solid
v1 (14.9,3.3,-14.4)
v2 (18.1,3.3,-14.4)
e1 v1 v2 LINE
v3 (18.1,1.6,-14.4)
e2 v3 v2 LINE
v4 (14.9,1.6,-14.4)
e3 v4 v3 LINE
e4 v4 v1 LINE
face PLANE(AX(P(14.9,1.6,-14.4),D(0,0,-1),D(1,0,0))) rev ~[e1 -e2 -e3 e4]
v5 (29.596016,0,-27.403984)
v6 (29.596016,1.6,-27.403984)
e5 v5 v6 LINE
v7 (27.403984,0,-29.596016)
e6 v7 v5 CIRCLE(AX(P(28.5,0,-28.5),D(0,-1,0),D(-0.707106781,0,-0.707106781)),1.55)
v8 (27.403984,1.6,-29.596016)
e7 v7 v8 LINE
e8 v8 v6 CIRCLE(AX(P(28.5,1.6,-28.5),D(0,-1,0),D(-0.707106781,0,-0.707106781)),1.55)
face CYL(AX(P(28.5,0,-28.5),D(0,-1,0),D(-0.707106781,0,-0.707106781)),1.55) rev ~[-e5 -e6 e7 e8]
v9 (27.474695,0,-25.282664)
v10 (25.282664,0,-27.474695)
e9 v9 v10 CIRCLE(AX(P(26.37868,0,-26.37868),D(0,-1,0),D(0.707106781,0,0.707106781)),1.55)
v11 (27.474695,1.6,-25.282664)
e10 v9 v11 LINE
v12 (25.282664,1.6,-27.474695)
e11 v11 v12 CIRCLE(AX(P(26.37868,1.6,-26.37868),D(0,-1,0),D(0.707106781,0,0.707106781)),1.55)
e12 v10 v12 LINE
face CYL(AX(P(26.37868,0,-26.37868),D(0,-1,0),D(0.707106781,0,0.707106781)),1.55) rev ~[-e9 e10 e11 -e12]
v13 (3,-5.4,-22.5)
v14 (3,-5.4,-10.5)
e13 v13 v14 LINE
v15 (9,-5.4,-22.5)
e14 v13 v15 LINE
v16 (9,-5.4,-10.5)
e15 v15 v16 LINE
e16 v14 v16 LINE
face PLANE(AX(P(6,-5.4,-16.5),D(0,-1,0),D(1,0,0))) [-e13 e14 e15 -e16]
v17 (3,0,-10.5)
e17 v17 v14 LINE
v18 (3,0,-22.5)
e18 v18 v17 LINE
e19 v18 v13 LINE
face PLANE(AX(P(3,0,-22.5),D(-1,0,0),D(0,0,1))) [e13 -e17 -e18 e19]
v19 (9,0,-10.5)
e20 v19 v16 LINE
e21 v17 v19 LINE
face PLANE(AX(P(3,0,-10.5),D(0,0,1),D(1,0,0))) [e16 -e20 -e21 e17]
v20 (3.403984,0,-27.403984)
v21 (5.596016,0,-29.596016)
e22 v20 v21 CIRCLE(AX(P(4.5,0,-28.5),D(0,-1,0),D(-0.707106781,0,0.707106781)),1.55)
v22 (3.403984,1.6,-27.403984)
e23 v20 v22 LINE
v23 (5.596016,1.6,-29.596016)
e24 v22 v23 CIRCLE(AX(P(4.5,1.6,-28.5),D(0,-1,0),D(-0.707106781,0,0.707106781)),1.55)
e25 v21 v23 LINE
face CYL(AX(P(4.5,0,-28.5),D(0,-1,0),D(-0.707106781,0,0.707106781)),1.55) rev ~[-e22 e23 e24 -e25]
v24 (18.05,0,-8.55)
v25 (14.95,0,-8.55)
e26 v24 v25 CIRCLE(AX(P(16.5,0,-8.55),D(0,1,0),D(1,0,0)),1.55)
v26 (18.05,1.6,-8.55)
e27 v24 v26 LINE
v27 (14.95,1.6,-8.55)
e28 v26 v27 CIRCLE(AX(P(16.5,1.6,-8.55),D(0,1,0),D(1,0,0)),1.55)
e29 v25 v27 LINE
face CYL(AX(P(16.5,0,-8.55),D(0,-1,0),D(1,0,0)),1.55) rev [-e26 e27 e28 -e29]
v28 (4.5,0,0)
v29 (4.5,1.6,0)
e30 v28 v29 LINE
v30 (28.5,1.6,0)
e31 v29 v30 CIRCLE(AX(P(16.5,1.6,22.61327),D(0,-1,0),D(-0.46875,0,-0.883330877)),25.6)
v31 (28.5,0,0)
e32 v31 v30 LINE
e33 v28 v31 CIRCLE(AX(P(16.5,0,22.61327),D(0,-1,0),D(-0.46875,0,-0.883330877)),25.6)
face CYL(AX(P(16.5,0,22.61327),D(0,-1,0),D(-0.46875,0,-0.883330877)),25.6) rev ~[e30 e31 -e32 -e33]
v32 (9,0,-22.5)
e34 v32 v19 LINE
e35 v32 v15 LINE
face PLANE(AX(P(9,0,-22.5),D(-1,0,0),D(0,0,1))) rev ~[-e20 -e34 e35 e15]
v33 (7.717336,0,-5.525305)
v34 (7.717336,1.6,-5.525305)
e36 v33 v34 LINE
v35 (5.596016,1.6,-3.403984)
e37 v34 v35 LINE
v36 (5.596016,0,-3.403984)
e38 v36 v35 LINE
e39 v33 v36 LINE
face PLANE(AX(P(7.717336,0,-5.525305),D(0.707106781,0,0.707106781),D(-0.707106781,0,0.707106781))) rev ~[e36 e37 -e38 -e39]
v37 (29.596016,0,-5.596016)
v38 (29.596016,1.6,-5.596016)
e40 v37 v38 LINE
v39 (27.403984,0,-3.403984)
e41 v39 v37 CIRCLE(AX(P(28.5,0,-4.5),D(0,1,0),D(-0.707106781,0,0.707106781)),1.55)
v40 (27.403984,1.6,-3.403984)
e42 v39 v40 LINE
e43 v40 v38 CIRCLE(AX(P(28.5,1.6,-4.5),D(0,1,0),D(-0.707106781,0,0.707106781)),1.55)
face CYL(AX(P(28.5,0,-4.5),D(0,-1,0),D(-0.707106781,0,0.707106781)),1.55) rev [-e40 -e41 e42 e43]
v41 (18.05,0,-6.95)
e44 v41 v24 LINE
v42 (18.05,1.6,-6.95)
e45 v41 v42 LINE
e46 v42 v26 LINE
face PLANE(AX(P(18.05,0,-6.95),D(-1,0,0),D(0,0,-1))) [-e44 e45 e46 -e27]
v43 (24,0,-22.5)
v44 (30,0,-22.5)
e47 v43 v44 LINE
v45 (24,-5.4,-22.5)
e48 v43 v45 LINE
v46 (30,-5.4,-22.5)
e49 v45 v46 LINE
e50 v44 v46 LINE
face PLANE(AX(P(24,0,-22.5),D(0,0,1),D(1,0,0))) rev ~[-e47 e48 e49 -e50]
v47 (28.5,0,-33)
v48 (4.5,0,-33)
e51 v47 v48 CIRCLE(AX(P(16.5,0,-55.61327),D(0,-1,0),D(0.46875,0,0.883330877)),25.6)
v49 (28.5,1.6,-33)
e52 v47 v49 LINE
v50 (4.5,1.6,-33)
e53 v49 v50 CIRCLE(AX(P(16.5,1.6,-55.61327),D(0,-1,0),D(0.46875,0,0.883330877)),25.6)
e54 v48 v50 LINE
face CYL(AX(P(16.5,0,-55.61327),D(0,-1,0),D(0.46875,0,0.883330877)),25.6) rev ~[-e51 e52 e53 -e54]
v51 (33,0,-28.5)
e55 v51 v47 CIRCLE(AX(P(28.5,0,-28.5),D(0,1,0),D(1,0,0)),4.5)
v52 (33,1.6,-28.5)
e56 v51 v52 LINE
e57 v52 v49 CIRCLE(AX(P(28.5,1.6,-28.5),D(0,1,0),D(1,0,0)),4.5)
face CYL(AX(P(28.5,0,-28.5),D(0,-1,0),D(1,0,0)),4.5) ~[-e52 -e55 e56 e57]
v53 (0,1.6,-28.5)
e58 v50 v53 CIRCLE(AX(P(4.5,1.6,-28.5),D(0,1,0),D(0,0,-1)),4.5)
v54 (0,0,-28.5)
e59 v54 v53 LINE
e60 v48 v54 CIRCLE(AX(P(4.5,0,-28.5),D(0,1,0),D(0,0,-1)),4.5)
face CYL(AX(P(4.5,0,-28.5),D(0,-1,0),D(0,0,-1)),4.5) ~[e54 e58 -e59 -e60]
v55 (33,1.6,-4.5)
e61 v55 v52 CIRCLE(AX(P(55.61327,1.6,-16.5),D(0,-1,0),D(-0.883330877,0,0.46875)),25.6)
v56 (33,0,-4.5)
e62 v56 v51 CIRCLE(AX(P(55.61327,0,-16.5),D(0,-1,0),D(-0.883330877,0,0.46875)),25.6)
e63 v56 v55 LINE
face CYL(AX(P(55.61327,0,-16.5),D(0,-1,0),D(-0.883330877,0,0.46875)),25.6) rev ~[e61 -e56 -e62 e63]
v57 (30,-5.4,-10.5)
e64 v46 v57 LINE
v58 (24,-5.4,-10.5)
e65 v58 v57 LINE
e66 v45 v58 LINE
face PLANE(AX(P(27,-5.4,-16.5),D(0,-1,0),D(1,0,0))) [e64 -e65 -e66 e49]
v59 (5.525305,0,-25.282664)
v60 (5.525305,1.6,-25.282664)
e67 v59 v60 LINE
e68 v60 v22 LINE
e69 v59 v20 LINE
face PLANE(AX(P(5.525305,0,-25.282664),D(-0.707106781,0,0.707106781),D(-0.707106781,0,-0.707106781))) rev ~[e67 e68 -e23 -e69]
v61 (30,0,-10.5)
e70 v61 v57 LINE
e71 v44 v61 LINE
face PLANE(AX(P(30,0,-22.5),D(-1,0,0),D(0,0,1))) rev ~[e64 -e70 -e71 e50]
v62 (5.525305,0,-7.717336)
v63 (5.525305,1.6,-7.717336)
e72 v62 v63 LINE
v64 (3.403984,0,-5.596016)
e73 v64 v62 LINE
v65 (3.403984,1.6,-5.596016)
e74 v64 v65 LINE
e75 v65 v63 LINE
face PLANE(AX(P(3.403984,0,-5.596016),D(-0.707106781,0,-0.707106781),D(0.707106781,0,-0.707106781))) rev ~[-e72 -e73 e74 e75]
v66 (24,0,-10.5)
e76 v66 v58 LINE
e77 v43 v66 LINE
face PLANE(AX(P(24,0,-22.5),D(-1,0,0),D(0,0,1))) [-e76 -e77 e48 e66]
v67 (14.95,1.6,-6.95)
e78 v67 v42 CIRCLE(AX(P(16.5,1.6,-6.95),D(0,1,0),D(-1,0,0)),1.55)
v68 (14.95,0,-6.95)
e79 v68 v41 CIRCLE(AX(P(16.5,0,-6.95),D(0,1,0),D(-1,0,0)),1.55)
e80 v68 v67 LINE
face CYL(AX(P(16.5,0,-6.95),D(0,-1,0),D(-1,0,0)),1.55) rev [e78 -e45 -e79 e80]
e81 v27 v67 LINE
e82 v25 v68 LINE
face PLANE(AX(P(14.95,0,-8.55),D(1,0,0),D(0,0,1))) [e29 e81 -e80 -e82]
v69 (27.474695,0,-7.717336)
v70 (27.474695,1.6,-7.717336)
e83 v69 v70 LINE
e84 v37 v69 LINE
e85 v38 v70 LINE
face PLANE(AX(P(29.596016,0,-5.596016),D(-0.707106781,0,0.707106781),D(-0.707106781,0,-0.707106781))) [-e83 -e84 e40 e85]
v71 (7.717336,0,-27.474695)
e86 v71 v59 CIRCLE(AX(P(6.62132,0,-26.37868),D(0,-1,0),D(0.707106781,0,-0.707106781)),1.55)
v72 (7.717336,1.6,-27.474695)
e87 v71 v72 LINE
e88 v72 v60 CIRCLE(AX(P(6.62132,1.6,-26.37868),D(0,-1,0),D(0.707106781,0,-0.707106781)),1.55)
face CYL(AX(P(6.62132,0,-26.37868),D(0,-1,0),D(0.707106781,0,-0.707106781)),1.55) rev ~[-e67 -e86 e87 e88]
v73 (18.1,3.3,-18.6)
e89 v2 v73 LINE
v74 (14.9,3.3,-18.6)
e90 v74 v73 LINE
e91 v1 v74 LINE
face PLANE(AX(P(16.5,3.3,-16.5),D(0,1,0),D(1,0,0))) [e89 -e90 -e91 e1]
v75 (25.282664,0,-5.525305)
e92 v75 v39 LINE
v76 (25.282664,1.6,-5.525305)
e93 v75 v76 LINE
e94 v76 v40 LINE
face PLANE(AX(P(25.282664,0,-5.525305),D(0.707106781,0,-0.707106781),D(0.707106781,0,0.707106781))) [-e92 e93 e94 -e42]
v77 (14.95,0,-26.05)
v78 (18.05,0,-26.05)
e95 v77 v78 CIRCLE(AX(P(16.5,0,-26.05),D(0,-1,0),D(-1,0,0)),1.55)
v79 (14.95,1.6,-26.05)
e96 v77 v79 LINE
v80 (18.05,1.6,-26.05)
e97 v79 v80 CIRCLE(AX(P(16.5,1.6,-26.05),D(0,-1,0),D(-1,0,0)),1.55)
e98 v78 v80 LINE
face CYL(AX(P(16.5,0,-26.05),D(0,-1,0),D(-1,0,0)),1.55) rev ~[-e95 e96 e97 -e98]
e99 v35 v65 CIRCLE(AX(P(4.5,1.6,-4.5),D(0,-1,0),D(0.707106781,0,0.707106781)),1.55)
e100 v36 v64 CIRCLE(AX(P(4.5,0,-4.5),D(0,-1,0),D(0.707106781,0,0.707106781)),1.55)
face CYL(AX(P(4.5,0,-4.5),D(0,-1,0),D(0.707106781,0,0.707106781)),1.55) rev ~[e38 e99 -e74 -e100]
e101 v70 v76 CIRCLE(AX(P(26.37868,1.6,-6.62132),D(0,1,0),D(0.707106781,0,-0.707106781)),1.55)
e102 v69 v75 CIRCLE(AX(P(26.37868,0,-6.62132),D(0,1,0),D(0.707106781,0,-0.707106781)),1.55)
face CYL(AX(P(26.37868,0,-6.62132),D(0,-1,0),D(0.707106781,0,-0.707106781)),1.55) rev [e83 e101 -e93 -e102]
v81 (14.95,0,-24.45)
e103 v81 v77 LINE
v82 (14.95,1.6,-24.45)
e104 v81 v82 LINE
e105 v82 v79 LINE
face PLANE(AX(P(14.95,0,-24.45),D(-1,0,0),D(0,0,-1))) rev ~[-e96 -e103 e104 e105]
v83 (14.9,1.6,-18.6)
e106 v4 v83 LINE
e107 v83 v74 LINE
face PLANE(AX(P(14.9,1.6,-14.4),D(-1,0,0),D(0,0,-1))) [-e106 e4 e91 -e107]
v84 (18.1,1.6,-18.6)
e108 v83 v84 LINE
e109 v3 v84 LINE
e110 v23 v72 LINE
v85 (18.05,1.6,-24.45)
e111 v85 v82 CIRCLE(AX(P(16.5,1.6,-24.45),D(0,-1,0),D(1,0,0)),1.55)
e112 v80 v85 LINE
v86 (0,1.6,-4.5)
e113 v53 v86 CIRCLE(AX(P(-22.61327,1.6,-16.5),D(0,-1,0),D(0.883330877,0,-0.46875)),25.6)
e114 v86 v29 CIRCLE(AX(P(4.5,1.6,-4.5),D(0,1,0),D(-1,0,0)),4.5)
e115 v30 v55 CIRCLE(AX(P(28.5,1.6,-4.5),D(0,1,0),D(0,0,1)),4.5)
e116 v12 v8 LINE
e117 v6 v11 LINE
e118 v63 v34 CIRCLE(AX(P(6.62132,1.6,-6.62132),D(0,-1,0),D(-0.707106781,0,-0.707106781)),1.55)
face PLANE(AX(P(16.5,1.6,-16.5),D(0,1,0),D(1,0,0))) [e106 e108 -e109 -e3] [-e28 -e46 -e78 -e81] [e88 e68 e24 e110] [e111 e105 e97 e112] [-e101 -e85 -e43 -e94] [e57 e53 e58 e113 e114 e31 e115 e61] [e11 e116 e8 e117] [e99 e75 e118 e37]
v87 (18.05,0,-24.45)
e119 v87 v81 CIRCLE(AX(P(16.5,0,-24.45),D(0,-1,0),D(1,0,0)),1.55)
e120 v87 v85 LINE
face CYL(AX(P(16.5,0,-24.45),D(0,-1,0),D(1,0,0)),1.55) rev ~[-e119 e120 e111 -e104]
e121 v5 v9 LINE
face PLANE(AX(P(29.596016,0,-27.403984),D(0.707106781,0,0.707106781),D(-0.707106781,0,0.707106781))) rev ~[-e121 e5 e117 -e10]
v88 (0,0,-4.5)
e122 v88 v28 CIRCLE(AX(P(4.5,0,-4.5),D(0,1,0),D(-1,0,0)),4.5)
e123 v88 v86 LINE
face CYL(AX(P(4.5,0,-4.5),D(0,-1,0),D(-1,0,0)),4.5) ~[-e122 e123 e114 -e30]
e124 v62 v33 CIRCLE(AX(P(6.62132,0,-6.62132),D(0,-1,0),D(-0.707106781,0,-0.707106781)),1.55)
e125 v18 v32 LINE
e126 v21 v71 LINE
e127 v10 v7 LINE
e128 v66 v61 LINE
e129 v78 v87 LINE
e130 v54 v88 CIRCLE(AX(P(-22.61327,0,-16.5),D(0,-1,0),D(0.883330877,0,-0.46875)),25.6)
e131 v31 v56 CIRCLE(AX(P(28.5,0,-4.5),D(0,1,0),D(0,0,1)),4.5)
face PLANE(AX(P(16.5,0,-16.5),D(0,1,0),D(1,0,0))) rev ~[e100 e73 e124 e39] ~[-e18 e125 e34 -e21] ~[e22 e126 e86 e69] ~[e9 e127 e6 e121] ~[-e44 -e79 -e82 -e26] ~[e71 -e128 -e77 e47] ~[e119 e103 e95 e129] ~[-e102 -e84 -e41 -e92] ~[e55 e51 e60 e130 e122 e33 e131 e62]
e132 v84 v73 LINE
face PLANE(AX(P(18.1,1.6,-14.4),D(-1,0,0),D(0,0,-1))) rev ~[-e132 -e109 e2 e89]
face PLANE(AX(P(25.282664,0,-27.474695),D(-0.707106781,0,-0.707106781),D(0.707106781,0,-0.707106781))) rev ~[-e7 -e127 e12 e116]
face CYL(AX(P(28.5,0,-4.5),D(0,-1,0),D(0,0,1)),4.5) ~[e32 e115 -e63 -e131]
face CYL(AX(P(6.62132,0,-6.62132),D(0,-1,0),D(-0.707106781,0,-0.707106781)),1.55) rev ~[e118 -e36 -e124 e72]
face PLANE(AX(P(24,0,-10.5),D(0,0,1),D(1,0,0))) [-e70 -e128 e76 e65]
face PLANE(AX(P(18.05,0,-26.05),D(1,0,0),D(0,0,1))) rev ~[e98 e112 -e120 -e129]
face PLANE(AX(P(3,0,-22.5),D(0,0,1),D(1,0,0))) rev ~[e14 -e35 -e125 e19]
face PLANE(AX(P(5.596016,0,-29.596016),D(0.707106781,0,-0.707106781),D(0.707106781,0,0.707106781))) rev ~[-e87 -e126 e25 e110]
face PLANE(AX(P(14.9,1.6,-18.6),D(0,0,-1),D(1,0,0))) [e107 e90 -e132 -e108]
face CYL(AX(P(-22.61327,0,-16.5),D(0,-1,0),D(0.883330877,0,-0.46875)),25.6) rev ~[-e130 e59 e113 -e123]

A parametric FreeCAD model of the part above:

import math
import FreeCAD as App
import Part
import Sketcher
from FreeCAD import Vector


def add_polygon(sketch, points):
    """Adds a closed chain of lines whose ends are joined by coincident constraints."""
    first, n = sketch.GeometryCount, len(points)
    for a, b in zip(points, points[1:] + points[:1]):
        sketch.addGeometry(Part.LineSegment(App.Vector(*a, 0), App.Vector(*b, 0)), False)
    for i in range(n):
        sketch.addConstraint(Sketcher.Constraint("Coincident", first + i, 2, first + (i + 1) % n, 1))

doc = App.newDocument("Part")
body = doc.addObject("PartDesign::Body", "Body")

sketch1 = body.newObject("Sketcher::SketchObject", "Sketch")
sketch1.AttachmentSupport = (doc.getObject("XZ_Plane"), [""])
sketch1.MapMode = "FlatFace"
sketch1.addGeometry([
    Part.ArcOfCircle(Part.Circle(Vector(4.5, -4.5, 0), Vector(0, 0, 1), 4.5), math.radians(90), math.radians(180)),
    Part.ArcOfCircle(Part.Circle(Vector(16.5, 22.61327, 0), Vector(0, 0, 1), 25.6), math.radians(-117.953187), math.radians(-62.046813)),
    Part.ArcOfCircle(Part.Circle(Vector(28.5, -4.5, 0), Vector(0, 0, 1), 4.5), math.radians(0), math.radians(90)),
    Part.ArcOfCircle(Part.Circle(Vector(55.61327, -16.5, 0), Vector(0, 0, 1), 25.6), math.radians(152.046813), math.radians(207.953187)),
    Part.ArcOfCircle(Part.Circle(Vector(28.5, -28.5, 0), Vector(0, 0, 1), 4.5), math.radians(-90), math.radians(0)),
    Part.ArcOfCircle(Part.Circle(Vector(16.5, -55.61327, 0), Vector(0, 0, 1), 25.6), math.radians(62.046813), math.radians(117.953187)),
    Part.ArcOfCircle(Part.Circle(Vector(4.5, -28.5, 0), Vector(0, 0, 1), 4.5), math.radians(-180), math.radians(-90)),
    Part.ArcOfCircle(Part.Circle(Vector(-22.61327, -16.5, 0), Vector(0, 0, 1), 25.6), math.radians(-27.953187), math.radians(27.953187)),
    Part.ArcOfCircle(Part.Circle(Vector(4.5, -4.5, 0), Vector(0, 0, 1), 1.55), math.radians(45), math.radians(225)),
    Part.LineSegment(Vector(3.403984, -5.596016, 0), Vector(5.525305, -7.717336, 0)),
    Part.ArcOfCircle(Part.Circle(Vector(6.62132, -6.62132, 0), Vector(0, 0, 1), 1.55), math.radians(-135), math.radians(45)),
    Part.LineSegment(Vector(7.717336, -5.525305, 0), Vector(5.596016, -3.403984, 0)),
    Part.LineSegment(Vector(18.05, -8.55, 0), Vector(18.05, -6.95, 0)),
    Part.ArcOfCircle(Part.Circle(Vector(16.5, -6.95, 0), Vector(0, 0, 1), 1.55), math.radians(0), math.radians(180)),
    Part.LineSegment(Vector(14.95, -6.95, 0), Vector(14.95, -8.55, 0)),
    Part.ArcOfCircle(Part.Circle(Vector(16.5, -8.55, 0), Vector(0, 0, 1), 1.55), math.radians(180), math.radians(360)),
    Part.LineSegment(Vector(27.474695, -7.717336, 0), Vector(29.596016, -5.596016, 0)),
    Part.ArcOfCircle(Part.Circle(Vector(28.5, -4.5, 0), Vector(0, 0, 1), 1.55), math.radians(-45), math.radians(135)),
    Part.LineSegment(Vector(27.403984, -3.403984, 0), Vector(25.282664, -5.525305, 0)),
    Part.ArcOfCircle(Part.Circle(Vector(26.37868, -6.62132, 0), Vector(0, 0, 1), 1.55), math.radians(135), math.radians(315)),
    Part.ArcOfCircle(Part.Circle(Vector(4.5, -28.5, 0), Vector(0, 0, 1), 1.55), math.radians(135), math.radians(315)),
    Part.LineSegment(Vector(5.596016, -29.596016, 0), Vector(7.717336, -27.474695, 0)),
    Part.ArcOfCircle(Part.Circle(Vector(6.62132, -26.37868, 0), Vector(0, 0, 1), 1.55), math.radians(-45), math.radians(135)),
    Part.LineSegment(Vector(5.525305, -25.282664, 0), Vector(3.403984, -27.403984, 0)),
    Part.ArcOfCircle(Part.Circle(Vector(16.5, -26.05, 0), Vector(0, 0, 1), 1.55), math.radians(180), math.radians(360)),
    Part.LineSegment(Vector(18.05, -26.05, 0), Vector(18.05, -24.45, 0)),
    Part.ArcOfCircle(Part.Circle(Vector(16.5, -24.45, 0), Vector(0, 0, 1), 1.55), math.radians(0), math.radians(180)),
    Part.LineSegment(Vector(14.95, -24.45, 0), Vector(14.95, -26.05, 0)),
    Part.ArcOfCircle(Part.Circle(Vector(26.37868, -26.37868, 0), Vector(0, 0, 1), 1.55), math.radians(45), math.radians(225)),
    Part.LineSegment(Vector(25.282664, -27.474695, 0), Vector(27.403984, -29.596016, 0)),
    Part.ArcOfCircle(Part.Circle(Vector(28.5, -28.5, 0), Vector(0, 0, 1), 1.55), math.radians(-135), math.radians(45)),
    Part.LineSegment(Vector(29.596016, -27.403984, 0), Vector(27.474695, -25.282664, 0)),
], False)
sketch1.addConstraint([
    Sketcher.Constraint("Coincident", 0, 1, 1, 1),
    Sketcher.Constraint("Coincident", 1, 2, 2, 2),
    Sketcher.Constraint("Coincident", 2, 1, 3, 1),
    Sketcher.Constraint("Coincident", 3, 2, 4, 2),
    Sketcher.Constraint("Coincident", 4, 1, 5, 1),
    Sketcher.Constraint("Coincident", 5, 2, 6, 2),
    Sketcher.Constraint("Coincident", 6, 1, 7, 1),
    Sketcher.Constraint("Coincident", 7, 2, 0, 2),
    Sketcher.Constraint("Tangent", 8, 2, 9, 1),
    Sketcher.Constraint("Tangent", 9, 2, 10, 1),
    Sketcher.Constraint("Tangent", 10, 2, 11, 1),
    Sketcher.Constraint("Tangent", 11, 2, 8, 1),
    Sketcher.Constraint("Tangent", 12, 2, 13, 1),
    Sketcher.Constraint("Tangent", 13, 2, 14, 1),
    Sketcher.Constraint("Tangent", 14, 2, 15, 1),
    Sketcher.Constraint("Tangent", 15, 2, 12, 1),
    Sketcher.Constraint("Tangent", 16, 2, 17, 1),
    Sketcher.Constraint("Tangent", 17, 2, 18, 1),
    Sketcher.Constraint("Tangent", 18, 2, 19, 1),
    Sketcher.Constraint("Tangent", 19, 2, 16, 1),
    Sketcher.Constraint("Tangent", 20, 2, 21, 1),
    Sketcher.Constraint("Tangent", 21, 2, 22, 1),
    Sketcher.Constraint("Tangent", 22, 2, 23, 1),
    Sketcher.Constraint("Tangent", 23, 2, 20, 1),
    Sketcher.Constraint("Tangent", 24, 2, 25, 1),
    Sketcher.Constraint("Tangent", 25, 2, 26, 1),
    Sketcher.Constraint("Tangent", 26, 2, 27, 1),
    Sketcher.Constraint("Tangent", 27, 2, 24, 1),
    Sketcher.Constraint("Tangent", 28, 2, 29, 1),
    Sketcher.Constraint("Tangent", 29, 2, 30, 1),
    Sketcher.Constraint("Tangent", 30, 2, 31, 1),
    Sketcher.Constraint("Tangent", 31, 2, 28, 1),
    Sketcher.Constraint("Vertical", 12),
    Sketcher.Constraint("Vertical", 14),
    Sketcher.Constraint("Vertical", 25),
    Sketcher.Constraint("Vertical", 27),
    Sketcher.Constraint("Coincident", 8, 3, 0, 3),
    Sketcher.Constraint("Coincident", 17, 3, 2, 3),
    Sketcher.Constraint("Coincident", 20, 3, 6, 3),
    Sketcher.Constraint("Coincident", 30, 3, 4, 3),
    Sketcher.Constraint("Equal", 0, 2),
    Sketcher.Constraint("Equal", 1, 3),
    Sketcher.Constraint("Equal", 2, 4),
    Sketcher.Constraint("Equal", 3, 5),
    Sketcher.Constraint("Equal", 4, 6),
    Sketcher.Constraint("Equal", 5, 7),
    Sketcher.Constraint("Equal", 8, 10),
    Sketcher.Constraint("Equal", 10, 13),
    Sketcher.Constraint("Equal", 15, 17),
    Sketcher.Constraint("Equal", 17, 19),
    Sketcher.Constraint("Equal", 19, 20),
    Sketcher.Constraint("Equal", 20, 22),
    Sketcher.Constraint("Equal", 22, 24),
    Sketcher.Constraint("Equal", 26, 28),
    Sketcher.Constraint("Equal", 28, 30),
    Sketcher.Constraint("PointOnObject", 0, 1, -1),
    Sketcher.Constraint("PointOnObject", 1, 2, -1),
    Sketcher.Constraint("PointOnObject", 6, 1, -2),
    Sketcher.Constraint("PointOnObject", 7, 2, -2),
    Sketcher.Constraint("Perpendicular", 11, 16),
    Sketcher.Constraint("Parallel", 18, 21),
    Sketcher.Constraint("Perpendicular", 23, 29),
    Sketcher.Constraint("Horizontal", 4, 3, 6, 3),
    Sketcher.Constraint("Horizontal", 3, 3, 7, 3),
    Sketcher.Constraint("Horizontal", 10, 3, 19, 3),
    Sketcher.Constraint("Horizontal", 22, 3, 28, 3),
    Sketcher.Constraint("Horizontal", 17, 3, 2, 1),
    Sketcher.Constraint("Horizontal", 30, 3, 3, 2),
    Sketcher.Constraint("Horizontal", 3, 2, 6, 1),
    Sketcher.Constraint("Horizontal", 2, 1, 7, 2),
    Sketcher.Constraint("Horizontal", 8, 2, 16, 2),
    Sketcher.Constraint("Vertical", 1, 3, 5, 3),
    Sketcher.Constraint("Vertical", 5, 3, 13, 3),
    Sketcher.Constraint("Vertical", 10, 3, 22, 3),
    Sketcher.Constraint("Vertical", 15, 3, 24, 3),
    Sketcher.Constraint("Vertical", 20, 3, 0, 1),
    Sketcher.Constraint("Vertical", 30, 3, 1, 2),
    Sketcher.Constraint("Vertical", 1, 2, 4, 1),
    Sketcher.Constraint("Equal", 14, 25),
    Sketcher.Constraint("Radius", 0, 4.5),
    Sketcher.Constraint("Radius", 1, 25.6),
    Sketcher.Constraint("Radius", 8, 1.55),
    Sketcher.Constraint("Distance", 9, 3.0),
    Sketcher.Constraint("DistanceY", 12, 1, 12, 2, 1.6),
    Sketcher.Constraint("DistanceX", -1, 1, 2, 1, 33.0),
    Sketcher.Constraint("DistanceY", 4, 1, -1, 1, 33.0),
    Sketcher.Constraint("DistanceY", 24, 3, 15, 3, 17.5),
    Sketcher.Constraint("DistanceY", 13, 3, -1, 1, 6.95),
])
pad1 = body.newObject("PartDesign::Pad", "Pad")
pad1.Profile = sketch1
pad1.Length = 1.6
pad1.Reversed = True

sketch2 = body.newObject("Sketcher::SketchObject", "Sketch001")
sketch2.AttachmentSupport = (doc.getObject("XZ_Plane"), [""])
sketch2.MapMode = "FlatFace"
sketch2.AttachmentOffset = App.Placement(Vector(0, 0, -1.6), App.Rotation())
add_polygon(sketch2, [(14.9, -18.6), (14.9, -14.4), (18.1, -14.4), (18.1, -18.6)])
sketch2.addConstraint([
    Sketcher.Constraint("Vertical", 0),
    Sketcher.Constraint("Horizontal", 1),
    Sketcher.Constraint("Vertical", 2),
    Sketcher.Constraint("Horizontal", 3),
    Sketcher.Constraint("DistanceX", 1, 1, 1, 2, 3.2),
    Sketcher.Constraint("DistanceY", 0, 1, 0, 2, 4.2),
    Sketcher.Constraint("DistanceX", -1, 1, 0, 2, 14.9),
    Sketcher.Constraint("DistanceY", 0, 2, -1, 1, 14.4),
])
pad2 = body.newObject("PartDesign::Pad", "Pad001")
pad2.Profile = sketch2
pad2.Length = 1.7
pad2.Reversed = True

sketch3 = body.newObject("Sketcher::SketchObject", "Sketch002")
sketch3.AttachmentSupport = (doc.getObject("XZ_Plane"), [""])
sketch3.MapMode = "FlatFace"
add_polygon(sketch3, [(3, -10.5), (3, -22.5), (9, -22.5), (9, -10.5)])
add_polygon(sketch3, [(24, -10.5), (24, -22.5), (30, -22.5), (30, -10.5)])
sketch3.addConstraint([
    Sketcher.Constraint("Vertical", 0),
    Sketcher.Constraint("Horizontal", 1),
    Sketcher.Constraint("Vertical", 2),
    Sketcher.Constraint("Horizontal", 3),
    Sketcher.Constraint("Vertical", 4),
    Sketcher.Constraint("Horizontal", 5),
    Sketcher.Constraint("Vertical", 6),
    Sketcher.Constraint("Horizontal", 7),
    Sketcher.Constraint("Horizontal", 1, 2, 4, 2),
    Sketcher.Constraint("Horizontal", 3, 2, 6, 2),
    Sketcher.Constraint("Equal", 3, 5),
    Sketcher.Constraint("DistanceX", 1, 1, 1, 2, 6.0),
    Sketcher.Constraint("DistanceY", 0, 2, 0, 1, 12.0),
    Sketcher.Constraint("DistanceX", -1, 1, 0, 2, 3.0),
    Sketcher.Constraint("DistanceX", -1, 1, 4, 2, 24.0),
    Sketcher.Constraint("DistanceY", 0, 2, -1, 1, 22.5),
])
pad3 = body.newObject("PartDesign::Pad", "Pad002")
pad3.Profile = sketch3
pad3.Length = 5.4

doc.recompute()
